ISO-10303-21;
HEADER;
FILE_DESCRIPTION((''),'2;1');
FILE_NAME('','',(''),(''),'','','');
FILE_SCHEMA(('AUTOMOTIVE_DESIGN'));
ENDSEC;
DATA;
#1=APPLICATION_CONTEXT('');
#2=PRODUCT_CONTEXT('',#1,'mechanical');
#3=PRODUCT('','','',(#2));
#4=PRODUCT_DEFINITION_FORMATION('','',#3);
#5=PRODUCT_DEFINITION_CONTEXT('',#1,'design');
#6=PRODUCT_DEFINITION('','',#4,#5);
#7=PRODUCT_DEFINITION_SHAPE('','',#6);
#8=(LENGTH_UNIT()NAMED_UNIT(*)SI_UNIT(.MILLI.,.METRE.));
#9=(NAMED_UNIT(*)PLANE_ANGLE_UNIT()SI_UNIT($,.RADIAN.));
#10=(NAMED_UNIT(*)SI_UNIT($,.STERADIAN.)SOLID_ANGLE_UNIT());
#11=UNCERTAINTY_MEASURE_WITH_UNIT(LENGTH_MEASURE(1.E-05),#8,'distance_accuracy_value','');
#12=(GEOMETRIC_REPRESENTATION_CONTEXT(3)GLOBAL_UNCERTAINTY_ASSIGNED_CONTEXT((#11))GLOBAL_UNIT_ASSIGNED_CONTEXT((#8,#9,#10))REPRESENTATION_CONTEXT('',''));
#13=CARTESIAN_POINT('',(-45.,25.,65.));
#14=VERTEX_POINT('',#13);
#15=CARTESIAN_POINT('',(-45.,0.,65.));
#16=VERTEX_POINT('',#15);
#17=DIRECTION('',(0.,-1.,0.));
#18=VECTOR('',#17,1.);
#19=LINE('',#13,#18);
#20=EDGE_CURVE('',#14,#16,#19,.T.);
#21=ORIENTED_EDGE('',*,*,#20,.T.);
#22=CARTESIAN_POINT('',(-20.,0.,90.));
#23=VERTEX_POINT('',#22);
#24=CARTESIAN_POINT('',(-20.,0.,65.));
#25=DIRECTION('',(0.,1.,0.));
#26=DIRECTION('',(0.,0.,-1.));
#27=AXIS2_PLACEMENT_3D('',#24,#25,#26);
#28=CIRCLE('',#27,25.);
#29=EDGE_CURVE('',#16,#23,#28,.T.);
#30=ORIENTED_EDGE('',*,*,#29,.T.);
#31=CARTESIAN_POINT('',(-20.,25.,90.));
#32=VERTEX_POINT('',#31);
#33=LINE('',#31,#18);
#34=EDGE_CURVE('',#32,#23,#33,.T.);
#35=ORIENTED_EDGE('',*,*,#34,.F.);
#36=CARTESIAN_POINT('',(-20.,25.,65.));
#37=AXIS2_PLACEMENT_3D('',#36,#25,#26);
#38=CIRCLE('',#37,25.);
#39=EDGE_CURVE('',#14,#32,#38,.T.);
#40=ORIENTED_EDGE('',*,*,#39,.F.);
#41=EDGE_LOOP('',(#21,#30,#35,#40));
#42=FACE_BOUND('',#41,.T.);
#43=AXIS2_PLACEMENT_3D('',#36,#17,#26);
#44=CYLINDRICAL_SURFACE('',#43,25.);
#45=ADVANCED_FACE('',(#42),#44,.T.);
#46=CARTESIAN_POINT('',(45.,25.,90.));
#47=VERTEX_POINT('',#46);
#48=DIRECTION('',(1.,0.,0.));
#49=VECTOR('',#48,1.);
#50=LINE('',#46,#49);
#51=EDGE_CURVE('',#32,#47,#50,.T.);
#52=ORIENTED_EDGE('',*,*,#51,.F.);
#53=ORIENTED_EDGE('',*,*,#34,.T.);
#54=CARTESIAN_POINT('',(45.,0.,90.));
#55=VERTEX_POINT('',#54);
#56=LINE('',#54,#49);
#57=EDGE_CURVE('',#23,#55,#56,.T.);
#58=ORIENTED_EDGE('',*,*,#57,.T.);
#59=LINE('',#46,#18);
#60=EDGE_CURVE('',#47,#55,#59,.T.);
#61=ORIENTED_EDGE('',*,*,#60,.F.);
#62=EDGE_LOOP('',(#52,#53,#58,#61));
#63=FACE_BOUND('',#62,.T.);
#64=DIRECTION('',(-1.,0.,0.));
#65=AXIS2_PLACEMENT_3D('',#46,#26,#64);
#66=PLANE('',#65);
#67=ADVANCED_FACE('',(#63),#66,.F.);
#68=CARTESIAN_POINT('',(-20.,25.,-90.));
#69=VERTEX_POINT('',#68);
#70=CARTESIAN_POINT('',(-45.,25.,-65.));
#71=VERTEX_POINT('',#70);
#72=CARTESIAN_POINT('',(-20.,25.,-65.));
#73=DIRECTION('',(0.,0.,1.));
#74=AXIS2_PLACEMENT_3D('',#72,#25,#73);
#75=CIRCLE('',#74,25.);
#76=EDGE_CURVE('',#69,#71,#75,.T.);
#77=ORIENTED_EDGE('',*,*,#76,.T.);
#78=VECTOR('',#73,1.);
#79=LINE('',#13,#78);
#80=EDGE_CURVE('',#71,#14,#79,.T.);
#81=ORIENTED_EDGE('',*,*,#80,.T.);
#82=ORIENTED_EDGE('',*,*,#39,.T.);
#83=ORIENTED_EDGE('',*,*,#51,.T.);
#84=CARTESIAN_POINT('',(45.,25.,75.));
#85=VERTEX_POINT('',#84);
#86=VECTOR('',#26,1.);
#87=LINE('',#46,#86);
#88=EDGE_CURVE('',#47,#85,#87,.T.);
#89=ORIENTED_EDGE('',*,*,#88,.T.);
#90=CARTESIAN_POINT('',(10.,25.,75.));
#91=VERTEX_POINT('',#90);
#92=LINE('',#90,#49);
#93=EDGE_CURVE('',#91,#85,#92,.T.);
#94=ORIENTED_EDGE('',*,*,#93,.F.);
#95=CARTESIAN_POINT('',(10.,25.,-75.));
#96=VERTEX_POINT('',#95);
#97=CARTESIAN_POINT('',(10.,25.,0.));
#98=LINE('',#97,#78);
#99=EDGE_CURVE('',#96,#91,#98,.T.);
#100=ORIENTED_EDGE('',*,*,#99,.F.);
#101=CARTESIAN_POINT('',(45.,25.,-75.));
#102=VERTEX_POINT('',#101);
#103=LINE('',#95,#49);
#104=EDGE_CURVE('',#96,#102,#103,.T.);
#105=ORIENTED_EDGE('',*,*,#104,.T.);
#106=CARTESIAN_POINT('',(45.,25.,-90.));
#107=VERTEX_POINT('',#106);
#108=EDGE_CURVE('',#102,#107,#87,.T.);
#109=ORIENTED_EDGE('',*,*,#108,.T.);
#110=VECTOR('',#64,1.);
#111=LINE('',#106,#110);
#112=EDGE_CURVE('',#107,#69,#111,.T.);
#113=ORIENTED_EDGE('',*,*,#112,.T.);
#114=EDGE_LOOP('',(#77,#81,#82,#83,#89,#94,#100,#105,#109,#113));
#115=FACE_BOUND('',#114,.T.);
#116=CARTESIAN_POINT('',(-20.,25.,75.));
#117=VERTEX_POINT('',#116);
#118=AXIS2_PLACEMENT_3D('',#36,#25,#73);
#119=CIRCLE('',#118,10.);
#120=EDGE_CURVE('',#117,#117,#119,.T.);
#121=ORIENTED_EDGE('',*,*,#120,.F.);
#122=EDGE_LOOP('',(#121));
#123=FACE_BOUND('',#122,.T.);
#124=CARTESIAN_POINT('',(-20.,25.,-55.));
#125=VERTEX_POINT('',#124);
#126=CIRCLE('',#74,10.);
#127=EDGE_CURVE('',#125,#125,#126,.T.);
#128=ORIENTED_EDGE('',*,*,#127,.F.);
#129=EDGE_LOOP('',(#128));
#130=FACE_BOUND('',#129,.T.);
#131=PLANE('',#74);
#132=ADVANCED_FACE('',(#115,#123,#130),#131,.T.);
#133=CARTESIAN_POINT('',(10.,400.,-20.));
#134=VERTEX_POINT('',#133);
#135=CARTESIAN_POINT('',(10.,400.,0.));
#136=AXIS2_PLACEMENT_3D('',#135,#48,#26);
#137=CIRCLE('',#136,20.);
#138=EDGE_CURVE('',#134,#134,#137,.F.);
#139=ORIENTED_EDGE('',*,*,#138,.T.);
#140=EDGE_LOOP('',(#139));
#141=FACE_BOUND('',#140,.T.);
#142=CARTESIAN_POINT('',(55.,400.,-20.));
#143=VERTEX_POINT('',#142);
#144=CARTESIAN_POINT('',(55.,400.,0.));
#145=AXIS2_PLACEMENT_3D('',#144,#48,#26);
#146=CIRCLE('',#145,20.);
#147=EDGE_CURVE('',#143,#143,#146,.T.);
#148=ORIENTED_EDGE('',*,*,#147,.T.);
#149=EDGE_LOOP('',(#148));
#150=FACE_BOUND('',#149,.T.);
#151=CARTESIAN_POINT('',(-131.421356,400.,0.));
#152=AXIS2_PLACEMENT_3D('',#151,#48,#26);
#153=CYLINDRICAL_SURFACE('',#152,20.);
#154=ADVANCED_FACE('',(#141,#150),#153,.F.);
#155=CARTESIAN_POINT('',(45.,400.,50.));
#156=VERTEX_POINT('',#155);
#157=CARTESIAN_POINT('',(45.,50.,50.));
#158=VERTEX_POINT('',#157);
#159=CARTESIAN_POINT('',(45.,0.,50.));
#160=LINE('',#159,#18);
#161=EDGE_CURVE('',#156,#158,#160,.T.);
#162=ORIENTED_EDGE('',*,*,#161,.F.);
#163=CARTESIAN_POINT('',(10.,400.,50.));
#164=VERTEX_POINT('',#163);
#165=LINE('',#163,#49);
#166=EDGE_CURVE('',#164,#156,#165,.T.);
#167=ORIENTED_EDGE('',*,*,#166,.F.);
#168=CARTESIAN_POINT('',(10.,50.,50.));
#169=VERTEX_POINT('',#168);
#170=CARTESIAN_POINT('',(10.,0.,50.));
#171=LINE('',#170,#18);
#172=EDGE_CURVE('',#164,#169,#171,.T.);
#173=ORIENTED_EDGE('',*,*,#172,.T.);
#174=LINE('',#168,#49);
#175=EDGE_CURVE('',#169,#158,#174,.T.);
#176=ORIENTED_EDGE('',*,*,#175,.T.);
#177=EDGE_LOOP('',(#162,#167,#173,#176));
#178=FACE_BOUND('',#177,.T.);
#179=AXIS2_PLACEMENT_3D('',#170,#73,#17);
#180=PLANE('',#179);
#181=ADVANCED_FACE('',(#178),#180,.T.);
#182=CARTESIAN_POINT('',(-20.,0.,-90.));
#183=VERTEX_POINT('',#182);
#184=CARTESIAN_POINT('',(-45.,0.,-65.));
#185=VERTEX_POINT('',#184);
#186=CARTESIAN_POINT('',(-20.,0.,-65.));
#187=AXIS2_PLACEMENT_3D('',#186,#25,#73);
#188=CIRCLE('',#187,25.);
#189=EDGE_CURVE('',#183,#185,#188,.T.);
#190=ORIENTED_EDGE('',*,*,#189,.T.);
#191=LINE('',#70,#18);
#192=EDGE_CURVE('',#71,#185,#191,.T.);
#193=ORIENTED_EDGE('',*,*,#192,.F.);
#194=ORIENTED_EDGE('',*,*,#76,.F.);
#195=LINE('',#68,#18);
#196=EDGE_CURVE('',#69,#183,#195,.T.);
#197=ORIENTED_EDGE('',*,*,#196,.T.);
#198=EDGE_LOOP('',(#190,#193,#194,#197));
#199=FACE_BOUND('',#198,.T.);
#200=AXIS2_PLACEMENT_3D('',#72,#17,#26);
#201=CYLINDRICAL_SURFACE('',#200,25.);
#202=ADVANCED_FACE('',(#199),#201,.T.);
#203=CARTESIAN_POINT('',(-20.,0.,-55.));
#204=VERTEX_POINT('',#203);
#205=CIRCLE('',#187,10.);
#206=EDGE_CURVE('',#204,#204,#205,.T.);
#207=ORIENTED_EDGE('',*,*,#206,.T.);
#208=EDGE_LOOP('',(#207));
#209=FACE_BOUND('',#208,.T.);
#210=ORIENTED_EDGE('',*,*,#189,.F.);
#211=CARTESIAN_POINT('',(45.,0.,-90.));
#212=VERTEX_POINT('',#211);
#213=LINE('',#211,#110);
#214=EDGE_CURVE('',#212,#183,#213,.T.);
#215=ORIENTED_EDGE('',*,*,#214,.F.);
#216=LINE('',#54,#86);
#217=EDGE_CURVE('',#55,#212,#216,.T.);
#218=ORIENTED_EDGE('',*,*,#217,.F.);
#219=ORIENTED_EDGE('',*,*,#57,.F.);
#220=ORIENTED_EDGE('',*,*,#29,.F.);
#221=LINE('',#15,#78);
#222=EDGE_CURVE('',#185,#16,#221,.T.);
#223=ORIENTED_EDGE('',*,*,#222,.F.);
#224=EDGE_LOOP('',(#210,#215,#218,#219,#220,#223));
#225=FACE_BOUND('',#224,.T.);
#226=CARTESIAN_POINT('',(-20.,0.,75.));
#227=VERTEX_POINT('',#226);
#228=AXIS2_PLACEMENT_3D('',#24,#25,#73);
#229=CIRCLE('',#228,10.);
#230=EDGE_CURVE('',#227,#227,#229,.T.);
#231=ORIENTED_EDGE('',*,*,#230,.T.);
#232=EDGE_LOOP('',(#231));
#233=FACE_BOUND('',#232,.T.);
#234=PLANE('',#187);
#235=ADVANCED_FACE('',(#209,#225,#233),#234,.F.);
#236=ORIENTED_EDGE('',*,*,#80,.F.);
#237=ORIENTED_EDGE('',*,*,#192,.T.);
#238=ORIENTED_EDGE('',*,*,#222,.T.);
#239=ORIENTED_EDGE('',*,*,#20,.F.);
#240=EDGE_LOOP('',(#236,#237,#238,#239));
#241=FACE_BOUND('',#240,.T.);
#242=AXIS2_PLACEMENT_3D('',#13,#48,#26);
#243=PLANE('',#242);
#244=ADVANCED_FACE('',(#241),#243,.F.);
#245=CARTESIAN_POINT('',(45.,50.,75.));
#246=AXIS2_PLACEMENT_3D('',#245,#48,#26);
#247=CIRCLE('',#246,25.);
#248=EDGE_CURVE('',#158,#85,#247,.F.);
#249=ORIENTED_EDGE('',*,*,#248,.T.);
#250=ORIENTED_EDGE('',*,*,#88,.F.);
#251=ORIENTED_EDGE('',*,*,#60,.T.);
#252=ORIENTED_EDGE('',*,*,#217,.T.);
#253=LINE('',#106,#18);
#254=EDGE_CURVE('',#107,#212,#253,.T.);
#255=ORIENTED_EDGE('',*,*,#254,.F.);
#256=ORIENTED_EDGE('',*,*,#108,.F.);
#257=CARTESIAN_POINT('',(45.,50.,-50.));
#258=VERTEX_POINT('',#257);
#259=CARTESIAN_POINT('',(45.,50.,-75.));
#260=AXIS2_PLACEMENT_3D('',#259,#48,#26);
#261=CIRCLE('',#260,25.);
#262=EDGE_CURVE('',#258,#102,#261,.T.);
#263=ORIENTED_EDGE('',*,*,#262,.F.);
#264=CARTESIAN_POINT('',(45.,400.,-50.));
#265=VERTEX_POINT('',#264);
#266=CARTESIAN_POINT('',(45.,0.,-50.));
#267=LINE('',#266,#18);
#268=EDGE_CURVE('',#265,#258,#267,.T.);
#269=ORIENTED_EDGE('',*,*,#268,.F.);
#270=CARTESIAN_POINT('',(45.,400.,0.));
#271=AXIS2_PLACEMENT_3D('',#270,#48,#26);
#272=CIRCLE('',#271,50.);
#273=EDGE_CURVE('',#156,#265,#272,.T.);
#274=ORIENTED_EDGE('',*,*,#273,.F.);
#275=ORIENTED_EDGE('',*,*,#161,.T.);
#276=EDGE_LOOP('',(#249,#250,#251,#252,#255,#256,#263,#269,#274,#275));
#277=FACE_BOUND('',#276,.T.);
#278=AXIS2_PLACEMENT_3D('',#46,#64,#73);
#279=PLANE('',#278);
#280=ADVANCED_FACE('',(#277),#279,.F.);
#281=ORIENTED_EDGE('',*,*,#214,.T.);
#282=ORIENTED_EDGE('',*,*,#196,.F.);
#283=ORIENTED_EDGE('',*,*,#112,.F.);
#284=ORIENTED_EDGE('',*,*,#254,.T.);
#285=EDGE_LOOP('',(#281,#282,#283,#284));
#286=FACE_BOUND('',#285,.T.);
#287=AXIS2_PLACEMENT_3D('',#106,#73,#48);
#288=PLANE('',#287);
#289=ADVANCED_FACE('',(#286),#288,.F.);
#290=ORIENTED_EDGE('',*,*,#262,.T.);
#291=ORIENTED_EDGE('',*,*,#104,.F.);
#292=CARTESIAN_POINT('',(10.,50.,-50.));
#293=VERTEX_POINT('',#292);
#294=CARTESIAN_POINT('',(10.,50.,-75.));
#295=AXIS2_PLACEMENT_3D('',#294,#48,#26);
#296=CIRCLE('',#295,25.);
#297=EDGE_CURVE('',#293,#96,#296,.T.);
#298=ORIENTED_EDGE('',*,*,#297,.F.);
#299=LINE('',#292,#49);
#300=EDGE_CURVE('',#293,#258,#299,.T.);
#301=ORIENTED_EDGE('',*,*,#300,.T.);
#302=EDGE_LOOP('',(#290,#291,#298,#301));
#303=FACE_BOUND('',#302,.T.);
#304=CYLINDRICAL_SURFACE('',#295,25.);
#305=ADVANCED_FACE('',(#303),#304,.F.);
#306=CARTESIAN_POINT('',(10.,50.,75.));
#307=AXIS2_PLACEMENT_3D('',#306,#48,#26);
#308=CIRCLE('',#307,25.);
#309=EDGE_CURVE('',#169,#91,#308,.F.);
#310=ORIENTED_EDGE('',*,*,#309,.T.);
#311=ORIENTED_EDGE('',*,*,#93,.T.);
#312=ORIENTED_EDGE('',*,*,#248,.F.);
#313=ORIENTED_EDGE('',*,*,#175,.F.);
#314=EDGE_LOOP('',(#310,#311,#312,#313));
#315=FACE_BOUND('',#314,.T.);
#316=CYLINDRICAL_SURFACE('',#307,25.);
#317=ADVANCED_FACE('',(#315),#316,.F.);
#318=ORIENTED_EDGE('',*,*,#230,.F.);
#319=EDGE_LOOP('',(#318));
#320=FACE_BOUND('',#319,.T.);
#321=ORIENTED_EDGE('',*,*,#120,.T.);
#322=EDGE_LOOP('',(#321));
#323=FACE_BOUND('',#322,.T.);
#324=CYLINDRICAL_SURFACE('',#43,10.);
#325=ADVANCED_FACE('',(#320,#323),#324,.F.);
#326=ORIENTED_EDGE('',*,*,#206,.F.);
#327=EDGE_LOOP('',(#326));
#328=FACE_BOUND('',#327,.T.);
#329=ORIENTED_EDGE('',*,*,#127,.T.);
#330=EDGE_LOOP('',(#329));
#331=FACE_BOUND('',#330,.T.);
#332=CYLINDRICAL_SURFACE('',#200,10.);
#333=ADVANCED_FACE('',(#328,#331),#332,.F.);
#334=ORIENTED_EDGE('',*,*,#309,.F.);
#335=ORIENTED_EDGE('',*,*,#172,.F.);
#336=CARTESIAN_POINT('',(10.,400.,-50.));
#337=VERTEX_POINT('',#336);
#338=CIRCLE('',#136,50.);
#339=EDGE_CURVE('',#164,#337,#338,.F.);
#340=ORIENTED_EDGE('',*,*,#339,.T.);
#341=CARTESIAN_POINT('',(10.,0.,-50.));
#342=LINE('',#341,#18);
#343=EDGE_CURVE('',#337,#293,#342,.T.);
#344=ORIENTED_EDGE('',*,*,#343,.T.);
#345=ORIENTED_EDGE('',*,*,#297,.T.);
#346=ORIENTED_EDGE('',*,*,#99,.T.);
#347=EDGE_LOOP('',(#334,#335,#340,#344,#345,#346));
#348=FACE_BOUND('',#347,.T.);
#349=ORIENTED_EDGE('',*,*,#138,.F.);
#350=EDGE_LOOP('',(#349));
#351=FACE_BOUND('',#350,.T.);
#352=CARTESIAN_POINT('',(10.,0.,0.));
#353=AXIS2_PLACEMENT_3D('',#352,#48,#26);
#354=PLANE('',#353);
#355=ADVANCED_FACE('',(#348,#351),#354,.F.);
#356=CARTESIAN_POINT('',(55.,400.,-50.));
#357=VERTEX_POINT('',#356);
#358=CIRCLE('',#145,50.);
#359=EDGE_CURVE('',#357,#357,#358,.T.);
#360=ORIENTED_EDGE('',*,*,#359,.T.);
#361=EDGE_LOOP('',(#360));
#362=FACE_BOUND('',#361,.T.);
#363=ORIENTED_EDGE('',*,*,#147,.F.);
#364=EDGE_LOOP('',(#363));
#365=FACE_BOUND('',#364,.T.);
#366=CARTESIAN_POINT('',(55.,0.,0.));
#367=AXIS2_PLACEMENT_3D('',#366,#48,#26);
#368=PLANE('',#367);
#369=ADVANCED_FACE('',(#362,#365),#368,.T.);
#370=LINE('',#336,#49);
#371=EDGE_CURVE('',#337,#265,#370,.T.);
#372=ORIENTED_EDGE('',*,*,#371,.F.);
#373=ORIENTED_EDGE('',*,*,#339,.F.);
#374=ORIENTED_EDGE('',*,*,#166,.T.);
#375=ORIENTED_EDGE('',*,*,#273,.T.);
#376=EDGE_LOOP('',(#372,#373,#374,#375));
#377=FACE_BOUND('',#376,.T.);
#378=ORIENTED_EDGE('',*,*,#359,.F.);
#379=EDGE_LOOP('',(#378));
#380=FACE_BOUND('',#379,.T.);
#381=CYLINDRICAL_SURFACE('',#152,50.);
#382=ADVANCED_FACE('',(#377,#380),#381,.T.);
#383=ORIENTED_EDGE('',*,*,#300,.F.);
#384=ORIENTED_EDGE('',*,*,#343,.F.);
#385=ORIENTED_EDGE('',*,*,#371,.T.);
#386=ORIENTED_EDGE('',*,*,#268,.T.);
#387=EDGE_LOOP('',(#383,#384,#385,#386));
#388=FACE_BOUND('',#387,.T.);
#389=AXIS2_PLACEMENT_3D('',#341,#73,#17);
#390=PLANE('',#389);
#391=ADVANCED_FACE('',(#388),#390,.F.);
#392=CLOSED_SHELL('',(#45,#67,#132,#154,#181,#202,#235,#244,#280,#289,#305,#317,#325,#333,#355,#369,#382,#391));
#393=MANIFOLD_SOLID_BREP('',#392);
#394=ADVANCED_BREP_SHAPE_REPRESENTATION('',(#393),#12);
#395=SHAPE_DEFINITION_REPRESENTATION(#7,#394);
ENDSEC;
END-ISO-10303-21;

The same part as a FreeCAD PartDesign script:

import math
import FreeCAD as App
import Part
import Sketcher

V = App.Vector

doc = App.newDocument("Part")
body = doc.addObject("PartDesign::Body", "Body")

# Sketch on XZ plane
sketch1 = body.newObject("Sketcher::SketchObject", "Sketch")
sketch1.AttachmentSupport = (doc.getObject("XZ_Plane"), [""])
sketch1.MapMode = "FlatFace"
sketch1.addGeometry([
    Part.LineSegment(V(-20, 90, 0), V(45, 90, 0)),  # 0
    Part.LineSegment(V(45, 90, 0), V(45, -90, 0)),  # 1
    Part.LineSegment(V(45, -90, 0), V(-20, -90, 0)),  # 2
    Part.ArcOfCircle(Part.Circle(V(-20, -65, 0), V(0, 0, 1), 25), math.radians(180), math.radians(270)),  # 3
    Part.LineSegment(V(-45, -65, 0), V(-45, 65, 0)),  # 4
    Part.ArcOfCircle(Part.Circle(V(-20, 65, 0), V(0, 0, 1), 25), math.radians(90), math.radians(180)),  # 5
    Part.Circle(V(-20, 65, 0), V(0, 0, 1), 10),  # 6
    Part.Circle(V(-20, -65, 0), V(0, 0, 1), 10),  # 7
], False)
sketch1.addConstraint([
    Sketcher.Constraint("Coincident", 0, 2, 1, 1),
    Sketcher.Constraint("Coincident", 1, 2, 2, 1),
    Sketcher.Constraint("Tangent", 2, 2, 3, 2),
    Sketcher.Constraint("Tangent", 3, 1, 4, 1),
    Sketcher.Constraint("Tangent", 4, 2, 5, 2),
    Sketcher.Constraint("Tangent", 5, 1, 0, 1),
    Sketcher.Constraint("Horizontal", 0),
    Sketcher.Constraint("Vertical", 1),
    Sketcher.Constraint("Horizontal", 2),
    Sketcher.Constraint("Vertical", 4),
    Sketcher.Constraint("Coincident", 6, 3, 5, 3),
    Sketcher.Constraint("Coincident", 7, 3, 3, 3),
    Sketcher.Constraint("Equal", 3, 5),
    Sketcher.Constraint("Equal", 6, 7),
    Sketcher.Constraint("Diameter", 6, 20.0),
    Sketcher.Constraint("Radius", 3, 25.0),
    Sketcher.Constraint("DistanceX", 0, 1, 0, 2, 65.0),
    Sketcher.Constraint("DistanceY", 1, 2, 1, 1, 180.0),
    Sketcher.Constraint("DistanceX", 3, 3, -1, 1, 20.0),
    Sketcher.Constraint("DistanceY", 3, 3, -1, 1, 65.0),
])
pad1 = body.newObject("PartDesign::Pad", "Pad")
pad1.Profile = sketch1
pad1.Length = 25
pad1.Reversed = True

# Sketch on YZ plane
sketch2 = body.newObject("Sketcher::SketchObject", "Sketch001")
sketch2.AttachmentSupport = (doc.getObject("YZ_Plane"), [""])
sketch2.MapMode = "FlatFace"
sketch2.AttachmentOffset = App.Placement(V(0, 0, 45), App.Rotation())
sketch2.addGeometry([
    Part.LineSegment(V(25, 75, 0), V(25, -75, 0)),  # 0
    Part.ArcOfCircle(Part.Circle(V(50, -75, 0), V(0, 0, 1), 25), math.radians(90), math.radians(180)),  # 1
    Part.LineSegment(V(50, -50, 0), V(400, -50, 0)),  # 2
    Part.ArcOfCircle(Part.Circle(V(400, 0, 0), V(0, 0, 1), 50), math.radians(-180), math.radians(-90)),  # 3
    Part.ArcOfCircle(Part.Circle(V(400, 0, 0), V(0, 0, 1), 50), math.radians(90), math.radians(180)),  # 4
    Part.LineSegment(V(400, 50, 0), V(50, 50, 0)),  # 5
    Part.ArcOfCircle(Part.Circle(V(50, 75, 0), V(0, 0, 1), 25), math.radians(180), math.radians(270)),  # 6
], False)
sketch2.addConstraint([
    Sketcher.Constraint("Tangent", 0, 2, 1, 2),
    Sketcher.Constraint("Tangent", 1, 1, 2, 1),
    Sketcher.Constraint("Tangent", 2, 2, 3, 2),
    Sketcher.Constraint("Tangent", 3, 1, 4, 2),
    Sketcher.Constraint("Tangent", 4, 1, 5, 1),
    Sketcher.Constraint("Tangent", 5, 2, 6, 2),
    Sketcher.Constraint("Tangent", 6, 1, 0, 1),
    Sketcher.Constraint("Vertical", 0),
    Sketcher.Constraint("Horizontal", 2),
    Sketcher.Constraint("Horizontal", 5),
    Sketcher.Constraint("Equal", 3, 4),
    Sketcher.Constraint("Equal", 1, 6),
    Sketcher.Constraint("PointOnObject", 3, 3, -1),
    Sketcher.Constraint("PointOnObject", 3, 1, -1),
    Sketcher.Constraint("Radius", 1, 25.0),
    Sketcher.Constraint("Radius", 3, 50.0),
    Sketcher.Constraint("DistanceX", 2, 1, 2, 2, 350.0),
    Sketcher.Constraint("DistanceX", -1, 1, 1, 3, 50.0),
])
pad2 = body.newObject("PartDesign::Pad", "Pad001")
pad2.Profile = sketch2
pad2.Length = 35
pad2.Reversed = True

# Sketch on YZ plane
sketch3 = body.newObject("Sketcher::SketchObject", "Sketch002")
sketch3.AttachmentSupport = (doc.getObject("YZ_Plane"), [""])
sketch3.MapMode = "FlatFace"
sketch3.AttachmentOffset = App.Placement(V(0, 0, 10), App.Rotation())
sketch3.addGeometry([
    Part.Circle(V(400, 0, 0), V(0, 0, 1), 50),
    Part.Circle(V(400, 0, 0), V(0, 0, 1), 20),
], False)
sketch3.addConstraint([
    Sketcher.Constraint("Coincident", 1, 3, 0, 3),
    Sketcher.Constraint("PointOnObject", 0, 3, -1),
    Sketcher.Constraint("Diameter", 0, 100.0),
    Sketcher.Constraint("Diameter", 1, 40.0),
    Sketcher.Constraint("DistanceX", -1, 1, 0, 3, 400.0),
])
pad3 = body.newObject("PartDesign::Pad", "Pad002")
pad3.Profile = sketch3
pad3.Length = 45

doc.recompute()
